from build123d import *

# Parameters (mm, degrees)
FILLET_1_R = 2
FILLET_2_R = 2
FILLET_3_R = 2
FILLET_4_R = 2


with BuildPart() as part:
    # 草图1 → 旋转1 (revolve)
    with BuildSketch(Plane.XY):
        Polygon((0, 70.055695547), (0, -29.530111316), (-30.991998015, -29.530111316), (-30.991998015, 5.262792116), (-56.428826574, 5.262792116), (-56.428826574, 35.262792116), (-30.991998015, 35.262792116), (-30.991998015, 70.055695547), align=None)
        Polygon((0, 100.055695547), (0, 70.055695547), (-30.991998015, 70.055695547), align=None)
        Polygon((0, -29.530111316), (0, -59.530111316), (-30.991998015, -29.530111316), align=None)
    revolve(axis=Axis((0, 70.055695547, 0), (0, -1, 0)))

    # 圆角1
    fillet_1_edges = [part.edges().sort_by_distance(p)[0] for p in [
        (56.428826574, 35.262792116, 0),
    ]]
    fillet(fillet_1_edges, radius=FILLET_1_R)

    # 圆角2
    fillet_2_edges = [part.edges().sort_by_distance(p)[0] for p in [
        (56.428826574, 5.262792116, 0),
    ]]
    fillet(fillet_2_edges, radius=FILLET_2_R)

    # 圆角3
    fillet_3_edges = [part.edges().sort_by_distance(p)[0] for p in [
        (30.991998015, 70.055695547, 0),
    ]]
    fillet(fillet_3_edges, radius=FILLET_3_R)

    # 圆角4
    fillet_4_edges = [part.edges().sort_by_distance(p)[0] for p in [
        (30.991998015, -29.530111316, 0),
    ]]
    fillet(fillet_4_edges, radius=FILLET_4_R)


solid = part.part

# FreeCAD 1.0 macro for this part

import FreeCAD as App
import Part
import Sketcher
Q = App.Units.Quantity


def edges_at(feature, points):
    """Names of the edges that pass closest to the given points."""
    edges = feature.Shape.Edges
    near = lambda p: min(range(len(edges)), key=lambda i: edges[i].distToShape(Part.Vertex(*p))[0])
    return sorted({f"Edge{near(p) + 1}" for p in points})


def add_polygon(sketch, points):
    """Adds a closed chain of lines whose ends are joined by coincident constraints."""
    first, n = sketch.GeometryCount, len(points)
    for a, b in zip(points, points[1:] + points[:1]):
        sketch.addGeometry(Part.LineSegment(App.Vector(*a, 0), App.Vector(*b, 0)), False)
    for i in range(n):
        sketch.addConstraint(Sketcher.Constraint("Coincident", first + i, 2, first + (i + 1) % n, 1))

doc = App.newDocument("Part")
body = doc.addObject("PartDesign::Body", "Body")

# Sketch on XY plane
sketch1 = body.newObject("Sketcher::SketchObject", "Sketch")
sketch1.AttachmentSupport = (doc.getObject("XY_Plane"), [""])
sketch1.MapMode = "FlatFace"
add_polygon(sketch1, [(0, -60), (0, 100), (-31, 70), (-31, 35), (-56, 35), (-56, 5), (-31, 5), (-31, -30)])  # lines 0-7
sketch1.addConstraint([
    Sketcher.Constraint("Vertical", 0),
    Sketcher.Constraint("Vertical", 2),
    Sketcher.Constraint("Horizontal", 3),
    Sketcher.Constraint("Vertical", 4),
    Sketcher.Constraint("Horizontal", 5),
    Sketcher.Constraint("Vertical", 6),
    Sketcher.Constraint("PointOnObject", 0, 2, -2),
    Sketcher.Constraint("Vertical", 2, 2, 5, 2),
    Sketcher.Constraint("Equal", 2, 6),
    Sketcher.Constraint("Equal", 1, 7),
    Sketcher.Constraint("DistanceY", 4, 2, 4, 1, Q("30 mm")),
    Sketcher.Constraint("DistanceY", 1, 2, 0, 2, Q("30 mm")),
    Sketcher.Constraint("DistanceX", 1, 2, -1, 1, Q("30.991998 mm")),
    Sketcher.Constraint("DistanceX", 3, 2, 3, 1, Q("25.436829 mm")),
    Sketcher.Constraint("DistanceY", 0, 1, 0, 2, Q("159.585807 mm")),
    Sketcher.Constraint("DistanceY", 6, 2, -1, 1, Q("29.530111 mm")),
])
revolution = body.newObject("PartDesign::Revolution", "Revolution")
revolution.Profile = sketch1
revolution.ReferenceAxis = (sketch1, ["V_Axis"])
revolution.Angle = 360
doc.recompute()

fillet = body.newObject("PartDesign::Fillet", "Fillet")
fillet.Base = (revolution, edges_at(revolution, [(56.429, 35.263, 0)]))
fillet.Radius = 2
doc.recompute()

fillet2 = body.newObject("PartDesign::Fillet", "Fillet001")
fillet2.Base = (fillet, edges_at(fillet, [(56.429, 5.263, 0)]))
fillet2.Radius = 2
doc.recompute()

fillet3 = body.newObject("PartDesign::Fillet", "Fillet002")
fillet3.Base = (fillet2, edges_at(fillet2, [(30.992, 70.056, 0)]))
fillet3.Radius = 2
doc.recompute()

fillet4 = body.newObject("PartDesign::Fillet", "Fillet003")
fillet4.Base = (fillet3, edges_at(fillet3, [(30.992, -29.53, 0)]))
fillet4.Radius = 2

doc.recompute()
